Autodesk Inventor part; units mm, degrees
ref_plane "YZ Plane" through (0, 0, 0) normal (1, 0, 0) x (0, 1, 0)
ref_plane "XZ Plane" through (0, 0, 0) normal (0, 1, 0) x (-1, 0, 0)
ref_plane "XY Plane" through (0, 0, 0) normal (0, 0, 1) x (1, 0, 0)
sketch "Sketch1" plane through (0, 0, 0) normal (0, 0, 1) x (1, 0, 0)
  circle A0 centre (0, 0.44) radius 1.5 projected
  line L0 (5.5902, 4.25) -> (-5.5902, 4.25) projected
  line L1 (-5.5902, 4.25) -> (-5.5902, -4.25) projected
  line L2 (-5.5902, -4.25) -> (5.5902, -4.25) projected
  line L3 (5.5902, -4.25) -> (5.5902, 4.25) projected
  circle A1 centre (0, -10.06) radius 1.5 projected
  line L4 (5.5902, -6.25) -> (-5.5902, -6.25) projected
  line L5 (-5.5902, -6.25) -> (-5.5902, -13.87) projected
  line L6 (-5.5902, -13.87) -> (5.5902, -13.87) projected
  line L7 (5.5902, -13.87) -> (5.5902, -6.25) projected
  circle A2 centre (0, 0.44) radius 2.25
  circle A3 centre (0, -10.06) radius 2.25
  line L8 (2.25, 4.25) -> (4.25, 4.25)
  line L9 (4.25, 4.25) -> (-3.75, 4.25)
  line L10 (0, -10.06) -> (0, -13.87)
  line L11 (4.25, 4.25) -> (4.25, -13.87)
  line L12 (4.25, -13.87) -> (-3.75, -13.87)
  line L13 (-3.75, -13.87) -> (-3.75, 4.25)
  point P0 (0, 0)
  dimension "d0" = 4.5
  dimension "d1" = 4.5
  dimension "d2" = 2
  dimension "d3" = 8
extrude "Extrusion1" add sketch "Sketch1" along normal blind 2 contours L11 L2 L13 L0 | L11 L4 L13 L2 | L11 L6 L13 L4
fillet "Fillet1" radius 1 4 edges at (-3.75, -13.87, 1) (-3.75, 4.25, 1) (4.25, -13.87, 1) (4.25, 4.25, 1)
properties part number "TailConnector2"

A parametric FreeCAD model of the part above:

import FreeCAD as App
import Part
import Sketcher
Q = App.Units.Quantity


def edges_at(feature, points):
    """Names of the edges that pass closest to the given points."""
    edges = feature.Shape.Edges
    near = lambda p: min(range(len(edges)), key=lambda i: edges[i].distToShape(Part.Vertex(*p))[0])
    return sorted({f"Edge{near(p) + 1}" for p in points})


def add_polygon(sketch, points):
    """Adds a closed chain of lines whose ends are joined by coincident constraints."""
    first, n = sketch.GeometryCount, len(points)
    for a, b in zip(points, points[1:] + points[:1]):
        sketch.addGeometry(Part.LineSegment(App.Vector(*a, 0), App.Vector(*b, 0)), False)
    for i in range(n):
        sketch.addConstraint(Sketcher.Constraint("Coincident", first + i, 2, first + (i + 1) % n, 1))

doc = App.newDocument("Part")
body = doc.addObject("PartDesign::Body", "Body")

sketch1 = body.newObject("Sketcher::SketchObject", "Sketch")
sketch1.AttachmentSupport = (doc.getObject("XY_Plane"), [""])
sketch1.MapMode = "FlatFace"
add_polygon(sketch1, [(4.2, 4.2), (-3.8, 4.2), (-3.8, -13.9), (0, -13.9), (4.2, -13.9)])
sketch1.addGeometry(Part.Circle(App.Vector(0, 0.4, 0), App.Vector(0, 0, 1), 2.2), False)
sketch1.addGeometry(Part.Circle(App.Vector(0, -10.1, 0), App.Vector(0, 0, 1), 2.2), False)
sketch1.addConstraint(Sketcher.Constraint("Horizontal", 0))
sketch1.addConstraint(Sketcher.Constraint("Vertical", 1))
sketch1.addConstraint(Sketcher.Constraint("Horizontal", 2))
sketch1.addConstraint(Sketcher.Constraint("Horizontal", 3))
sketch1.addConstraint(Sketcher.Constraint("Vertical", 4))
sketch1.addConstraint(Sketcher.Constraint("Equal", 5, 6))
sketch1.addConstraint(Sketcher.Constraint("PointOnObject", 5, 3, -2))
sketch1.addConstraint(Sketcher.Constraint("PointOnObject", 6, 3, -2))
sketch1.addConstraint(Sketcher.Constraint("PointOnObject", 2, 2, -2))
sketch1.addConstraint(Sketcher.Constraint("Diameter", 5, Q("4.5 mm")))
sketch1.addConstraint(Sketcher.Constraint("DistanceX", 0, 2, 0, 1, Q("8 mm")))
sketch1.addConstraint(Sketcher.Constraint("DistanceX", 2, 1, 2, 2, Q("3.75 mm")))
sketch1.addConstraint(Sketcher.Constraint("DistanceY", 1, 2, 1, 1, Q("18.12 mm")))
sketch1.addConstraint(Sketcher.Constraint("DistanceY", 6, 3, 5, 3, Q("10.5 mm")))
sketch1.addConstraint(Sketcher.Constraint("DistanceY", -1, 1, 5, 3, Q("0.44 mm")))
sketch1.addConstraint(Sketcher.Constraint("DistanceY", -1, 1, 0, 2, Q("4.25 mm")))
pad1 = body.newObject("PartDesign::Pad", "Pad")
pad1.Profile = sketch1
pad1.Length = 2
doc.recompute()

fillet = body.newObject("PartDesign::Fillet", "Fillet")
fillet.Base = (pad1, edges_at(pad1, [
    (-3.75, -13.87, 1),
    (-3.75, 4.25, 1),
    (4.25, -13.87, 1),
    (4.25, 4.25, 1),
]))
fillet.Radius = 1

doc.recompute()
